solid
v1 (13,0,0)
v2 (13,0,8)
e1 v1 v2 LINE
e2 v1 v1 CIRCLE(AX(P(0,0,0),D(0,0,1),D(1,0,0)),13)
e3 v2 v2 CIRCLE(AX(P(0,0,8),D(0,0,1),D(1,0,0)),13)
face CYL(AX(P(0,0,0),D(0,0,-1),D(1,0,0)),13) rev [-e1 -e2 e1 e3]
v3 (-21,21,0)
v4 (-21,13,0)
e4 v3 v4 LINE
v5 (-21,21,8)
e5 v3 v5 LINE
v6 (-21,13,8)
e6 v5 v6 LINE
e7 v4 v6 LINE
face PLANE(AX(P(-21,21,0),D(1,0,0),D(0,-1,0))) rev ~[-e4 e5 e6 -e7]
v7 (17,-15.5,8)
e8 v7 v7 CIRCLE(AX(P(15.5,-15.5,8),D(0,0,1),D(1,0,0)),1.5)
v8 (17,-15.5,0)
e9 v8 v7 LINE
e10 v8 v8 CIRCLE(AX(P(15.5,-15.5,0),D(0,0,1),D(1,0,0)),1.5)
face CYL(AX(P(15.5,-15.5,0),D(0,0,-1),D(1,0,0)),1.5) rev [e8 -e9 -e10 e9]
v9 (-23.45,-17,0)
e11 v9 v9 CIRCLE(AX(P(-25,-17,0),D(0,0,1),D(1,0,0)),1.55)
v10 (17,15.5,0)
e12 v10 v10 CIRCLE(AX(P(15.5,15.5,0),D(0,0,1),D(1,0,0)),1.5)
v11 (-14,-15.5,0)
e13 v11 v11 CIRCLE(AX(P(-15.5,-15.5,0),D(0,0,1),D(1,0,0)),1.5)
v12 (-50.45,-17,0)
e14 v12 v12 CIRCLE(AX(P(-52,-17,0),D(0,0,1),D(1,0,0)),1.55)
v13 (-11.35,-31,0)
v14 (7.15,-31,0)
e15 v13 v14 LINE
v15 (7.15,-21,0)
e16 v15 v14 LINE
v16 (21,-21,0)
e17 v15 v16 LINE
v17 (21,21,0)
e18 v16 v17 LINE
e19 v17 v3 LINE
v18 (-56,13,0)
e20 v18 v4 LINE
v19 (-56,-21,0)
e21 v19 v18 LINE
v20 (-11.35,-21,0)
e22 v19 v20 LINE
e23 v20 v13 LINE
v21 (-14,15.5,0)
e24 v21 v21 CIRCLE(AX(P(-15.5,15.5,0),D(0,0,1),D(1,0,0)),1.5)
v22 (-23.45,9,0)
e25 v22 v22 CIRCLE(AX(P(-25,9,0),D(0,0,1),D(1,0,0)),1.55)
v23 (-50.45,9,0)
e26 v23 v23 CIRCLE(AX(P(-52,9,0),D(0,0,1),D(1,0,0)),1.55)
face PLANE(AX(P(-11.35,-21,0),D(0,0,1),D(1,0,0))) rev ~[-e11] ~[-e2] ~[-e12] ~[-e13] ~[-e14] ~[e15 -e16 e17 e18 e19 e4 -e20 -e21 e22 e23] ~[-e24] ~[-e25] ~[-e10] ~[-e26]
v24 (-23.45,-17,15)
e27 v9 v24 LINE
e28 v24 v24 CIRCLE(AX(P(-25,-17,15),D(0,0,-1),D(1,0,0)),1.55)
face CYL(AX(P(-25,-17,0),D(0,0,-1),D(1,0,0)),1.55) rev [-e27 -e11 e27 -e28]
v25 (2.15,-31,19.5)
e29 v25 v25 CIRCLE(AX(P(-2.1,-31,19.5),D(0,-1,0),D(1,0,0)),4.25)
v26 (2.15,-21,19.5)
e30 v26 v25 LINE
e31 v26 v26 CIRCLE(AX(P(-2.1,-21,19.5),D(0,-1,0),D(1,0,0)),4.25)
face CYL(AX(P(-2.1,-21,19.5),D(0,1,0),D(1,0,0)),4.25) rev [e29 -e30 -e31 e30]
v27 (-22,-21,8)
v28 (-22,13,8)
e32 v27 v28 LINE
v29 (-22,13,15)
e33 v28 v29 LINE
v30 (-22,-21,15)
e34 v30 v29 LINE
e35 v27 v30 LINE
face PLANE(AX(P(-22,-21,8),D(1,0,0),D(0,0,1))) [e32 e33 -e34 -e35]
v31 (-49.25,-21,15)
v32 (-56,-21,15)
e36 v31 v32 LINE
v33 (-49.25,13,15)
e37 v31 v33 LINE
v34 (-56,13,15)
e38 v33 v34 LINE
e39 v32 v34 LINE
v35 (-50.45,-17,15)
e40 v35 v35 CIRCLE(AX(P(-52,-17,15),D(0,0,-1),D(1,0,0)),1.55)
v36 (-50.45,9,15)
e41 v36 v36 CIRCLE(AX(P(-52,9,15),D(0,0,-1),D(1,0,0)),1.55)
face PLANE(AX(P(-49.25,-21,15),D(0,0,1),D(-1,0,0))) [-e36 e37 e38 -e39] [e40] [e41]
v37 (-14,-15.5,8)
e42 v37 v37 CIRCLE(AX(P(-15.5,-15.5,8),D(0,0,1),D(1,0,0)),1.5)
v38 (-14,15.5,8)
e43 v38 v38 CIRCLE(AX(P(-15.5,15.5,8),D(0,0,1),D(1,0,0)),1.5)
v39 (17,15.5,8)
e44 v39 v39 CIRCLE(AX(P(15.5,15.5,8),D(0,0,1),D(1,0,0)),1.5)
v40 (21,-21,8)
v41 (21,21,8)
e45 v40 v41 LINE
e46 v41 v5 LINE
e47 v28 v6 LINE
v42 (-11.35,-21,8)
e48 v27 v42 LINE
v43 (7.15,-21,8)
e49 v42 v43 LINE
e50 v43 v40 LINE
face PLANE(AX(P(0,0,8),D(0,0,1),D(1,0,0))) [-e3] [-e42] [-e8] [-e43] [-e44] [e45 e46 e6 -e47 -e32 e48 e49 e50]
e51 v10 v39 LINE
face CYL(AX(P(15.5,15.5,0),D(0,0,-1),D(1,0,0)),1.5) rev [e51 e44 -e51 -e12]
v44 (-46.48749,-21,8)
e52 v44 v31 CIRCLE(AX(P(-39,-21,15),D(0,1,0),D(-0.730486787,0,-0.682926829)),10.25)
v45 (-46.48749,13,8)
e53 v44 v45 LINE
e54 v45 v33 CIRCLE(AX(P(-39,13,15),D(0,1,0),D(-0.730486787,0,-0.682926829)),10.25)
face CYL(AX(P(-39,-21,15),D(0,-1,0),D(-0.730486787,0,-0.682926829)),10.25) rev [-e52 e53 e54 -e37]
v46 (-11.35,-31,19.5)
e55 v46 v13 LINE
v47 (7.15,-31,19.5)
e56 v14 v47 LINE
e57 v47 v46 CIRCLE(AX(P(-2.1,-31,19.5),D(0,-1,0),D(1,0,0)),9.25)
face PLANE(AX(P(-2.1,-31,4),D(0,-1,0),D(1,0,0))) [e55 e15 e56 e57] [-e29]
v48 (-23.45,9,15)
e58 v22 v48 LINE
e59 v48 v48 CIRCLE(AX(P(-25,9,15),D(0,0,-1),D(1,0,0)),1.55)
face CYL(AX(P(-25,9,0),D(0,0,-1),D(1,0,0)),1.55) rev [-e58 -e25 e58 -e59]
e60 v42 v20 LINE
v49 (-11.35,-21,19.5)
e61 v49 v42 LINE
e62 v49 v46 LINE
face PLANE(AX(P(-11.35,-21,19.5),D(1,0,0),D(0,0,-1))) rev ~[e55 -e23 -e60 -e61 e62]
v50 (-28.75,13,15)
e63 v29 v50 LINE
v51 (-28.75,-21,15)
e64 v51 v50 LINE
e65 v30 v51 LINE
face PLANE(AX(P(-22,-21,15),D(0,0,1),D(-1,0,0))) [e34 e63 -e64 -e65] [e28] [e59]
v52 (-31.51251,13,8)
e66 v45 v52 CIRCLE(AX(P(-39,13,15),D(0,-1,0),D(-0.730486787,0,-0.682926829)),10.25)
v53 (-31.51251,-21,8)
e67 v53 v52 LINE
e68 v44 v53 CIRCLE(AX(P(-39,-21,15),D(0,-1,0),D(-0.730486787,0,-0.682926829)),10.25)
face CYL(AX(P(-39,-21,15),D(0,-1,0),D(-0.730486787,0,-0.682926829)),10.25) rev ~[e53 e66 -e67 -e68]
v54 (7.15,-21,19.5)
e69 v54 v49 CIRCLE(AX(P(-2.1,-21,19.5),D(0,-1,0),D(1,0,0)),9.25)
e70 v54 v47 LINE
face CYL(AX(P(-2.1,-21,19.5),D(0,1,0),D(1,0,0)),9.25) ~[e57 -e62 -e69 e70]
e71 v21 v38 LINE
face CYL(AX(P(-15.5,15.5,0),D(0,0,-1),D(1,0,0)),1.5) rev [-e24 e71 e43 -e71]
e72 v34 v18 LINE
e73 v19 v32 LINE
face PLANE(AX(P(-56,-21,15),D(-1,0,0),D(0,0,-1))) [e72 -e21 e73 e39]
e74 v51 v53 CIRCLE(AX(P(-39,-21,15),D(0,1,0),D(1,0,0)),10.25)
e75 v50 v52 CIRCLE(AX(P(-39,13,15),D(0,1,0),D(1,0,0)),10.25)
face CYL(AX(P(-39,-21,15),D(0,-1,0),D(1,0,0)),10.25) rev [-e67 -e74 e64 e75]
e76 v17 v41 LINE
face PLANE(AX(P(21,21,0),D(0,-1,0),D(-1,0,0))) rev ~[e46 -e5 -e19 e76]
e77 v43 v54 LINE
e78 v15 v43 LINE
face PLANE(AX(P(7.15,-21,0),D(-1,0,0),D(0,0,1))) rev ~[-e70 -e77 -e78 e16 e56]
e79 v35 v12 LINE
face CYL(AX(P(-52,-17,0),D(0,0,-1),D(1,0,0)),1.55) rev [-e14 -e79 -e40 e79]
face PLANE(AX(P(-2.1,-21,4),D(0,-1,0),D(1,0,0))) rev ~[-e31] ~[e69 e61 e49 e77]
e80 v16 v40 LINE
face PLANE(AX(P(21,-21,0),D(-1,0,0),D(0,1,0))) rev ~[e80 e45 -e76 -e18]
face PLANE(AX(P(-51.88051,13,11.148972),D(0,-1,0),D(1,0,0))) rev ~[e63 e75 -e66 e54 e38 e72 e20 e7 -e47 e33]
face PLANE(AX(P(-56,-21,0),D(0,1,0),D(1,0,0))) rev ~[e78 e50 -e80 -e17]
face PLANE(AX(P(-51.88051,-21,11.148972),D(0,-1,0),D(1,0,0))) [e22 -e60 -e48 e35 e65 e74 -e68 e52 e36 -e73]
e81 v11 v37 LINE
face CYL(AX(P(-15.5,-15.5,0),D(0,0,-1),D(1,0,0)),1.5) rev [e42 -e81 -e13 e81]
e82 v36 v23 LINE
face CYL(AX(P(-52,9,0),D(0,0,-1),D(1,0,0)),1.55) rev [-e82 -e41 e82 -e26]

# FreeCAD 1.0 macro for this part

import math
import FreeCAD as App
import Part
import Sketcher

V = App.Vector

doc = App.newDocument("Part")
body = doc.addObject("PartDesign::Body", "Body")

# Sketch on XY plane
sketch1 = doc.addObject("Sketcher::SketchObject", "Sketch")
body.addObject(sketch1)
sketch1.AttachmentSupport = (doc.XY_Plane, [""])
sketch1.MapMode = "FlatFace"
sketch1.addGeometry([
    Part.LineSegment(V(21, 21, 0), V(-21, 21, 0)),  # 0
    Part.LineSegment(V(-21, 21, 0), V(-21, 13, 0)),  # 1
    Part.LineSegment(V(-21, 13, 0), V(-56, 13, 0)),  # 2
    Part.LineSegment(V(-56, 13, 0), V(-56, -21, 0)),  # 3
    Part.LineSegment(V(-56, -21, 0), V(21, -21, 0)),  # 4
    Part.LineSegment(V(21, -21, 0), V(21, 21, 0)),  # 5
    Part.Circle(V(-52, -17, 0), V(0, 0, 1), 1.6),  # 6
    Part.Circle(V(-25, -17, 0), V(0, 0, 1), 1.6),  # 7
    Part.Circle(V(-15.5, -15.5, 0), V(0, 0, 1), 1.5),  # 8
    Part.Circle(V(15.5, -15.5, 0), V(0, 0, 1), 1.5),  # 9
    Part.Circle(V(-52, 9, 0), V(0, 0, 1), 1.6),  # 10
    Part.Circle(V(-25, 9, 0), V(0, 0, 1), 1.6),  # 11
    Part.Circle(V(0, 0, 0), V(0, 0, 1), 13),  # 12
    Part.Circle(V(-15.5, 15.5, 0), V(0, 0, 1), 1.5),  # 13
    Part.Circle(V(15.5, 15.5, 0), V(0, 0, 1), 1.5),  # 14
], False)
sketch1.addConstraint([
    Sketcher.Constraint("Coincident", 0, 2, 1, 1),
    Sketcher.Constraint("Coincident", 1, 2, 2, 1),
    Sketcher.Constraint("Coincident", 2, 2, 3, 1),
    Sketcher.Constraint("Coincident", 3, 2, 4, 1),
    Sketcher.Constraint("Coincident", 4, 2, 5, 1),
    Sketcher.Constraint("Coincident", 5, 2, 0, 1),
    Sketcher.Constraint("Horizontal", 0),
    Sketcher.Constraint("Vertical", 1),
    Sketcher.Constraint("Horizontal", 2),
    Sketcher.Constraint("Vertical", 3),
    Sketcher.Constraint("Horizontal", 4),
    Sketcher.Constraint("Vertical", 5),
    Sketcher.Constraint("Coincident", 12, 3, -1, 1),
    Sketcher.Constraint("Equal", 6, 7),
    Sketcher.Constraint("Equal", 8, 9),
    Sketcher.Constraint("Equal", 7, 10),
    Sketcher.Constraint("Equal", 10, 11),
    Sketcher.Constraint("Equal", 9, 13),
    Sketcher.Constraint("Equal", 13, 14),
    Sketcher.Constraint("Symmetric", 9, 3, 13, 3, -1, 1),
    Sketcher.Constraint("Symmetric", 8, 3, 14, 3, -1, 1),
    Sketcher.Constraint("Symmetric", 0, 2, 4, 2, -1, 1),
    Sketcher.Constraint("Symmetric", 8, 3, 9, 3, -2),
    Sketcher.Constraint("Horizontal", 6, 3, 7, 3),
    Sketcher.Constraint("Horizontal", 10, 3, 11, 3),
    Sketcher.Constraint("Vertical", 6, 3, 10, 3),
    Sketcher.Constraint("Vertical", 7, 3, 11, 3),
    Sketcher.Constraint("Equal", 0, 5),
    Sketcher.Constraint("Diameter", 8, 3.0),
    Sketcher.Constraint("Diameter", 12, 26.0),
    Sketcher.Constraint("Diameter", 6, 3.1),
    Sketcher.Constraint("DistanceX", 0, 2, 0, 1, 42.0),
    Sketcher.Constraint("DistanceX", 2, 2, 2, 1, 35.0),
    Sketcher.Constraint("DistanceY", 1, 2, 1, 1, 8.0),
    Sketcher.Constraint("DistanceX", 6, 3, -1, 1, 52.0),
    Sketcher.Constraint("DistanceY", 6, 3, -1, 1, 17.0),
    Sketcher.Constraint("DistanceX", 7, 3, -1, 1, 25.0),
    Sketcher.Constraint("DistanceY", -1, 1, 10, 3, 9.0),
    Sketcher.Constraint("DistanceX", 8, 3, 9, 3, 31.0),
    Sketcher.Constraint("DistanceY", 8, 3, 13, 3, 31.0),
])
pad1 = doc.addObject("PartDesign::Pad", "Pad")
body.addObject(pad1)
pad1.Profile = sketch1
pad1.Length = 8

# Sketch on XZ plane
sketch2 = doc.addObject("Sketcher::SketchObject", "Sketch001")
body.addObject(sketch2)
sketch2.AttachmentSupport = (doc.XZ_Plane, [""])
sketch2.MapMode = "FlatFace"
sketch2.AttachmentOffset = App.Placement(V(0, 0, 21), App.Rotation())
sketch2.addGeometry([
    Part.LineSegment(V(-11.3, 0, 0), V(7.2, 0, 0)),  # 0
    Part.LineSegment(V(7.2, 0, 0), V(7.2, 19.5, 0)),  # 1
    Part.ArcOfCircle(Part.Circle(V(-2.1, 19.5, 0), V(0, 0, 1), 9.2), math.radians(0), math.radians(180)),  # 2
    Part.LineSegment(V(-11.3, 19.5, 0), V(-11.3, 0, 0)),  # 3
    Part.Circle(V(-2.1, 19.5, 0), V(0, 0, 1), 4.2),  # 4
], False)
sketch2.addConstraint([
    Sketcher.Constraint("Coincident", 0, 2, 1, 1),
    Sketcher.Constraint("Tangent", 1, 2, 2, 1),
    Sketcher.Constraint("Tangent", 2, 2, 3, 1),
    Sketcher.Constraint("Coincident", 3, 2, 0, 1),
    Sketcher.Constraint("Horizontal", 0),
    Sketcher.Constraint("Vertical", 1),
    Sketcher.Constraint("Vertical", 3),
    Sketcher.Constraint("Coincident", 4, 3, 2, 3),
    Sketcher.Constraint("PointOnObject", 0, 2, -1),
    Sketcher.Constraint("Diameter", 4, 8.5),
    Sketcher.Constraint("Radius", 2, 9.25),
    Sketcher.Constraint("DistanceY", 1, 1, 1, 2, 19.5),
    Sketcher.Constraint("DistanceX", 2, 3, -1, 1, 2.1),
])
pad2 = doc.addObject("PartDesign::Pad", "Pad001")
body.addObject(pad2)
pad2.Profile = sketch2
pad2.Length = 10

# Sketch on XZ plane
sketch3 = doc.addObject("Sketcher::SketchObject", "Sketch002")
body.addObject(sketch3)
sketch3.AttachmentSupport = (doc.XZ_Plane, [""])
sketch3.MapMode = "FlatFace"
sketch3.AttachmentOffset = App.Placement(V(0, 0, 21), App.Rotation())
sketch3.addGeometry([
    Part.LineSegment(V(-56, 15, 0), V(-56, 8, 0)),  # 0
    Part.LineSegment(V(-56, 8, 0), V(-46, 8, 0)),  # 1
    Part.ArcOfCircle(Part.Circle(V(-39, 15, 0), V(0, 0, 1), 10), math.radians(180), math.radians(223)),  # 2
    Part.LineSegment(V(-49, 15, 0), V(-56, 15, 0)),  # 3
    Part.ArcOfCircle(Part.Circle(V(-39, 15, 0), V(0, 0, 1), 10), math.radians(-43), math.radians(0)),  # 4
    Part.LineSegment(V(-32, 8, 0), V(-22, 8, 0)),  # 5
    Part.LineSegment(V(-22, 8, 0), V(-22, 15, 0)),  # 6
    Part.LineSegment(V(-22, 15, 0), V(-29, 15, 0)),  # 7
], False)
sketch3.addConstraint([
    Sketcher.Constraint("Coincident", 0, 2, 1, 1),
    Sketcher.Constraint("Coincident", 1, 2, 2, 2),
    Sketcher.Constraint("Coincident", 2, 1, 3, 1),
    Sketcher.Constraint("Coincident", 3, 2, 0, 1),
    Sketcher.Constraint("Coincident", 4, 1, 5, 1),
    Sketcher.Constraint("Coincident", 5, 2, 6, 1),
    Sketcher.Constraint("Coincident", 6, 2, 7, 1),
    Sketcher.Constraint("Coincident", 7, 2, 4, 2),
    Sketcher.Constraint("Vertical", 0),
    Sketcher.Constraint("Horizontal", 1),
    Sketcher.Constraint("Horizontal", 3),
    Sketcher.Constraint("Horizontal", 5),
    Sketcher.Constraint("Vertical", 6),
    Sketcher.Constraint("Horizontal", 7),
    Sketcher.Constraint("Coincident", 4, 3, 2, 3),
    Sketcher.Constraint("Equal", 2, 4),
    Sketcher.Constraint("Horizontal", 4, 3, 2, 1),
    Sketcher.Constraint("Horizontal", 1, 2, 4, 1),
    Sketcher.Constraint("Horizontal", 3, 2, 6, 2),
    Sketcher.Constraint("Equal", 1, 5),
    Sketcher.Constraint("DistanceY", 0, 2, 0, 1, 7.0),
    Sketcher.Constraint("Radius", 2, 10.25),
    Sketcher.Constraint("DistanceX", 2, 3, -1, 1, 39.0),
    Sketcher.Constraint("DistanceY", -1, 1, 2, 3, 15.0),
    Sketcher.Constraint("DistanceX", 0, 2, -1, 1, 56.0),
])
pad3 = doc.addObject("PartDesign::Pad", "Pad002")
body.addObject(pad3)
pad3.Profile = sketch3
pad3.Length = 34
pad3.Reversed = True

# Sketch on XZ plane
sketch4 = doc.addObject("Sketcher::SketchObject", "Sketch003")
body.addObject(sketch4)
sketch4.AttachmentSupport = (doc.XZ_Plane, [""])
sketch4.MapMode = "FlatFace"
sketch4.AttachmentOffset = App.Placement(V(0, 0, 21), App.Rotation())
sketch4.addGeometry([
    Part.LineSegment(V(-32, 8, 0), V(-46, 8, 0)),
    Part.ArcOfCircle(Part.Circle(V(-39, 15, 0), V(0, 0, 1), 10), math.radians(-137), math.radians(-43)),
], False)
sketch4.addConstraint([
    Sketcher.Constraint("Coincident", 0, 1, 1, 2),
    Sketcher.Constraint("Coincident", 1, 1, 0, 2),
    Sketcher.Constraint("Horizontal", 0),
    Sketcher.Constraint("Radius", 1, 10.25),
    Sketcher.Constraint("DistanceX", 1, 3, -1, 1, 39.0),
    Sketcher.Constraint("DistanceY", -1, 1, 1, 3, 15.0),
    Sketcher.Constraint("DistanceY", -1, 1, 0, 1, 8.0),
])
pocket1 = doc.addObject("PartDesign::Pocket", "Pocket")
body.addObject(pocket1)
pocket1.Profile = sketch4
pocket1.Type = "ThroughAll"

# Sketch on XY plane
sketch5 = doc.addObject("Sketcher::SketchObject", "Sketch004")
body.addObject(sketch5)
sketch5.AttachmentSupport = (doc.XY_Plane, [""])
sketch5.MapMode = "FlatFace"
sketch5.addGeometry([
    Part.Circle(V(-52, -17, 0), V(0, 0, 1), 1.6),
    Part.Circle(V(-25, -17, 0), V(0, 0, 1), 1.6),
    Part.Circle(V(-25, 9, 0), V(0, 0, 1), 1.6),
    Part.Circle(V(-52, 9, 0), V(0, 0, 1), 1.6),
], False)
sketch5.addConstraint([
    Sketcher.Constraint("Equal", 0, 1),
    Sketcher.Constraint("Equal", 1, 2),
    Sketcher.Constraint("Equal", 2, 3),
    Sketcher.Constraint("Horizontal", 0, 3, 1, 3),
    Sketcher.Constraint("Horizontal", 2, 3, 3, 3),
    Sketcher.Constraint("Vertical", 1, 3, 2, 3),
    Sketcher.Constraint("Vertical", 0, 3, 3, 3),
    Sketcher.Constraint("Diameter", 0, 3.1),
    Sketcher.Constraint("DistanceX", 0, 3, -1, 1, 52.0),
    Sketcher.Constraint("DistanceY", 0, 3, -1, 1, 17.0),
    Sketcher.Constraint("DistanceX", 1, 3, -1, 1, 25.0),
    Sketcher.Constraint("DistanceY", -1, 1, 2, 3, 9.0),
])
pocket2 = doc.addObject("PartDesign::Pocket", "Pocket001")
body.addObject(pocket2)
pocket2.Profile = sketch5
pocket2.Type = "ThroughAll"
pocket2.Reversed = True

doc.recompute()
